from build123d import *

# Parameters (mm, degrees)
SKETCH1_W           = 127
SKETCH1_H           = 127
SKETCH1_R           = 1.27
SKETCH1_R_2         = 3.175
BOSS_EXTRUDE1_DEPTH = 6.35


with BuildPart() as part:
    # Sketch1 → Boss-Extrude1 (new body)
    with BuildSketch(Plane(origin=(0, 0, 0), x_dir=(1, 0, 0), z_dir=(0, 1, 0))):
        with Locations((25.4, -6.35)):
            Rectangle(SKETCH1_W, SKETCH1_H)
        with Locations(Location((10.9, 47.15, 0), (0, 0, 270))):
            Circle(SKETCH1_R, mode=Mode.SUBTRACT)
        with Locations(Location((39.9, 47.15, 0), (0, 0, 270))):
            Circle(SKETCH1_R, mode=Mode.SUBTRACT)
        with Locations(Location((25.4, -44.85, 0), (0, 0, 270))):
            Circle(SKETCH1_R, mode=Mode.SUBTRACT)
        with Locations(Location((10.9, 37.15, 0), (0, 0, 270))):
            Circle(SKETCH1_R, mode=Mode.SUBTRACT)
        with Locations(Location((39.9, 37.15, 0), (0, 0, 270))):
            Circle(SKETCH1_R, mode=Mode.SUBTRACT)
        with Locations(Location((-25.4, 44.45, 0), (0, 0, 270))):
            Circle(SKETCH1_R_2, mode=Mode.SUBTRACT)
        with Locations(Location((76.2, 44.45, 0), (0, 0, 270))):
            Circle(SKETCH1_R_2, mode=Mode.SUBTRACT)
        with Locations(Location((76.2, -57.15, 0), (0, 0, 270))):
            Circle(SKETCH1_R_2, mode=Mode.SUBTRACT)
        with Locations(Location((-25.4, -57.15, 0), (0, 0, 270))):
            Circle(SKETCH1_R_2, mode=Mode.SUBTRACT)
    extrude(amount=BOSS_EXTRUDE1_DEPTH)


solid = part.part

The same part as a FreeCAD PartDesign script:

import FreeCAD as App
import Part
import Sketcher
from FreeCAD import Vector
Q = App.Units.Quantity

doc = App.newDocument("Part")
body = doc.addObject("PartDesign::Body", "Body")

# Sketch on XZ plane
sketch1 = body.newObject("Sketcher::SketchObject", "Sketch")
sketch1.AttachmentSupport = (doc.getObject("XZ_Plane"), [""])
sketch1.MapMode = "FlatFace"
sketch1.addGeometry(Part.LineSegment(Vector(-38.1, -57.1, 0), Vector(-38.1, 69.8, 0)), False)
sketch1.addGeometry(Part.LineSegment(Vector(-38.1, 69.8, 0), Vector(88.9, 69.8, 0)), False)
sketch1.addGeometry(Part.LineSegment(Vector(88.9, 69.8, 0), Vector(88.9, -57.1, 0)), False)
sketch1.addGeometry(Part.LineSegment(Vector(88.9, -57.1, 0), Vector(-38.1, -57.1, 0)), False)
sketch1.addGeometry(Part.Circle(Vector(-25.4, 57.1, 0), Vector(0, 0, 1), 3.2), False)
sketch1.addGeometry(Part.Circle(Vector(25.4, 44.9, 0), Vector(0, 0, 1), 1.3), False)
sketch1.addGeometry(Part.Circle(Vector(76.2, 57.1, 0), Vector(0, 0, 1), 3.2), False)
sketch1.addGeometry(Part.Circle(Vector(-25.4, -44.5, 0), Vector(0, 0, 1), 3.2), False)
sketch1.addGeometry(Part.Circle(Vector(10.9, -37.1, 0), Vector(0, 0, 1), 1.3), False)
sketch1.addGeometry(Part.Circle(Vector(10.9, -47.1, 0), Vector(0, 0, 1), 1.3), False)
sketch1.addGeometry(Part.Circle(Vector(39.9, -37.1, 0), Vector(0, 0, 1), 1.3), False)
sketch1.addGeometry(Part.Circle(Vector(39.9, -47.1, 0), Vector(0, 0, 1), 1.3), False)
sketch1.addGeometry(Part.Circle(Vector(76.2, -44.5, 0), Vector(0, 0, 1), 3.2), False)
sketch1.addConstraint(Sketcher.Constraint("Coincident", 0, 2, 1, 1))
sketch1.addConstraint(Sketcher.Constraint("Coincident", 1, 2, 2, 1))
sketch1.addConstraint(Sketcher.Constraint("Coincident", 2, 2, 3, 1))
sketch1.addConstraint(Sketcher.Constraint("Coincident", 3, 2, 0, 1))
sketch1.addConstraint(Sketcher.Constraint("Vertical", 0))
sketch1.addConstraint(Sketcher.Constraint("Horizontal", 1))
sketch1.addConstraint(Sketcher.Constraint("Vertical", 2))
sketch1.addConstraint(Sketcher.Constraint("Horizontal", 3))
sketch1.addConstraint(Sketcher.Constraint("Equal", 4, 6))
sketch1.addConstraint(Sketcher.Constraint("Equal", 6, 7))
sketch1.addConstraint(Sketcher.Constraint("Equal", 5, 8))
sketch1.addConstraint(Sketcher.Constraint("Equal", 8, 9))
sketch1.addConstraint(Sketcher.Constraint("Equal", 9, 10))
sketch1.addConstraint(Sketcher.Constraint("Equal", 10, 11))
sketch1.addConstraint(Sketcher.Constraint("Equal", 7, 12))
sketch1.addConstraint(Sketcher.Constraint("Horizontal", 4, 3, 6, 3))
sketch1.addConstraint(Sketcher.Constraint("Horizontal", 8, 3, 10, 3))
sketch1.addConstraint(Sketcher.Constraint("Horizontal", 9, 3, 11, 3))
sketch1.addConstraint(Sketcher.Constraint("Horizontal", 7, 3, 12, 3))
sketch1.addConstraint(Sketcher.Constraint("Vertical", 4, 3, 7, 3))
sketch1.addConstraint(Sketcher.Constraint("Vertical", 8, 3, 9, 3))
sketch1.addConstraint(Sketcher.Constraint("Vertical", 10, 3, 11, 3))
sketch1.addConstraint(Sketcher.Constraint("Vertical", 6, 3, 12, 3))
sketch1.addConstraint(Sketcher.Constraint("Equal", 3, 0))
sketch1.addConstraint(Sketcher.Constraint("Diameter", 5, Q("0.1 in")))
sketch1.addConstraint(Sketcher.Constraint("Diameter", 4, Q("0.25 in")))
sketch1.addConstraint(Sketcher.Constraint("DistanceX", 1, 1, 1, 2, Q("5 in")))
sketch1.addConstraint(Sketcher.Constraint("DistanceX", 4, 3, -1, 1, Q("1 in")))
sketch1.addConstraint(Sketcher.Constraint("DistanceX", -1, 1, 5, 3, Q("1 in")))
sketch1.addConstraint(Sketcher.Constraint("DistanceX", -1, 1, 6, 3, Q("3 in")))
sketch1.addConstraint(Sketcher.Constraint("DistanceY", 7, 3, 4, 3, Q("4 in")))
sketch1.addConstraint(Sketcher.Constraint("DistanceX", 0, 2, -1, 1, Q("1.5 in")))
sketch1.addConstraint(Sketcher.Constraint("DistanceY", 4, 3, 0, 2, Q("0.5 in")))
sketch1.addConstraint(Sketcher.Constraint("DistanceY", -1, 1, 4, 3, Q("2.25 in")))
sketch1.addConstraint(Sketcher.Constraint("DistanceY", -1, 1, 5, 3, Q("44.85 mm")))
sketch1.addConstraint(Sketcher.Constraint("DistanceX", -1, 1, 8, 3, Q("10.9 mm")))
sketch1.addConstraint(Sketcher.Constraint("DistanceY", 8, 3, -1, 1, Q("37.15 mm")))
sketch1.addConstraint(Sketcher.Constraint("DistanceY", 9, 3, -1, 1, Q("47.15 mm")))
sketch1.addConstraint(Sketcher.Constraint("DistanceX", -1, 1, 10, 3, Q("39.9 mm")))
pad1 = body.newObject("PartDesign::Pad", "Pad")
pad1.Profile = sketch1
pad1.Length = Q("0.25 in")
pad1.Reversed = True

doc.recompute()
